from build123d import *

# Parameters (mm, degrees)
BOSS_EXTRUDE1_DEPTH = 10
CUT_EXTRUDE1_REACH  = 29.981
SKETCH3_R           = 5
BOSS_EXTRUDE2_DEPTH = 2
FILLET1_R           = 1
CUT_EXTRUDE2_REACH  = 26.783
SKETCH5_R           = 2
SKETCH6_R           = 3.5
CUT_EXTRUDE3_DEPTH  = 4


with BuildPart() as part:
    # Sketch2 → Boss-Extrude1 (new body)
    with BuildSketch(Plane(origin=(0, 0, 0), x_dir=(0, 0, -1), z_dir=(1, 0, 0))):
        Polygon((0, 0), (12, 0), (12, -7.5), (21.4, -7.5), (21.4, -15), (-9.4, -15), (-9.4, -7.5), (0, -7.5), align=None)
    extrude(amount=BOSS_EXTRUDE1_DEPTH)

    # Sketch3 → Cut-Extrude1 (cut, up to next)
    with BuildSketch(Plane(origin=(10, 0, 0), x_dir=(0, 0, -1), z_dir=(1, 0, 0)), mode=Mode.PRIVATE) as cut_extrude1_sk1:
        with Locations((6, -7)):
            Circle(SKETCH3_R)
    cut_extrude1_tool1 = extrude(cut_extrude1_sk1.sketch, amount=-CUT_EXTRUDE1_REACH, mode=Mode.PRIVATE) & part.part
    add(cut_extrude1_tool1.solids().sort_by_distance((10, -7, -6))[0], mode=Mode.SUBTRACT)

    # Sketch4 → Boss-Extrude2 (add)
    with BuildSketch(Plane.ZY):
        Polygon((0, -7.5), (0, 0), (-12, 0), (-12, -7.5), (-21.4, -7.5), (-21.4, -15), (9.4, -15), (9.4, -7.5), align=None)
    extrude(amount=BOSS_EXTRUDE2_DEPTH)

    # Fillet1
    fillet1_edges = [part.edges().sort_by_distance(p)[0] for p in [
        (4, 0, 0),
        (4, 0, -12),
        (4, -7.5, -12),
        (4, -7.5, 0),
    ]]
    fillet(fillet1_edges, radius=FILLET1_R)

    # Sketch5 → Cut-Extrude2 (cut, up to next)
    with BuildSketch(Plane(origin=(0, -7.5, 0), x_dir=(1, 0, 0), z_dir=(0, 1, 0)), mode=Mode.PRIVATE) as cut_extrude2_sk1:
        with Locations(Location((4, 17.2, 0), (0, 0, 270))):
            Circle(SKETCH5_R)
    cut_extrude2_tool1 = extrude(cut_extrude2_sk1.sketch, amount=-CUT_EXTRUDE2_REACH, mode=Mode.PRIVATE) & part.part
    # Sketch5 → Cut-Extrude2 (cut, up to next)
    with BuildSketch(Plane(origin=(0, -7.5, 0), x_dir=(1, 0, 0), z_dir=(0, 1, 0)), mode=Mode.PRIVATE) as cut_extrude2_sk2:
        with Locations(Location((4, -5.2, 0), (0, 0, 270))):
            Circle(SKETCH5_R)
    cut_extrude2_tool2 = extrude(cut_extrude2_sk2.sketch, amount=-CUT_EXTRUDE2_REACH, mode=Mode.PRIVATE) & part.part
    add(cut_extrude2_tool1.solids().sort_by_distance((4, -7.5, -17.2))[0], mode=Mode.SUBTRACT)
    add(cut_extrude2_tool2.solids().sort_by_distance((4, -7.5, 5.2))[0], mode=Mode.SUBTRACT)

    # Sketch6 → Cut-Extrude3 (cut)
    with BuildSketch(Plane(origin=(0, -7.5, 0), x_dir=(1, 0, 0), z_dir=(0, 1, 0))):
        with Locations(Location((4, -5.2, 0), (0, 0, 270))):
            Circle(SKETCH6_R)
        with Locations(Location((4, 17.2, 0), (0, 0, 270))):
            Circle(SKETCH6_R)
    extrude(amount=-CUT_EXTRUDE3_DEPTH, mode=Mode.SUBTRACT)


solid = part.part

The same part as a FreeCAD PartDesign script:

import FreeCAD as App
import Part
import Sketcher

V = App.Vector


def edges_at(feature, points):
    """Names of the edges that pass closest to the given points."""
    edges = feature.Shape.Edges
    near = lambda p: min(range(len(edges)), key=lambda i: edges[i].distToShape(Part.Vertex(*p))[0])
    return sorted({f"Edge{near(p) + 1}" for p in points})

doc = App.newDocument("Part")
body = doc.addObject("PartDesign::Body", "Body")

sketch1 = body.newObject("Sketcher::SketchObject", "Sketch")
sketch1.AttachmentSupport = (doc.getObject("YZ_Plane"), [""])
sketch1.MapMode = "FlatFace"
sketch1.addGeometry([
    Part.LineSegment(V(0, -12, 0), V(0, 0, 0)),
    Part.LineSegment(V(0, 0, 0), V(-8, 0, 0)),
    Part.LineSegment(V(-8, 0, 0), V(-8, 9, 0)),
    Part.LineSegment(V(-8, 9, 0), V(-15, 9, 0)),
    Part.LineSegment(V(-15, 9, 0), V(-15, -21, 0)),
    Part.LineSegment(V(-15, -21, 0), V(-8, -21, 0)),
    Part.LineSegment(V(-8, -21, 0), V(-8, -12, 0)),
    Part.LineSegment(V(-8, -12, 0), V(0, -12, 0)),
], False)
sketch1.addConstraint([
    Sketcher.Constraint("Coincident", 0, 2, 1, 1),
    Sketcher.Constraint("Coincident", 1, 2, 2, 1),
    Sketcher.Constraint("Coincident", 2, 2, 3, 1),
    Sketcher.Constraint("Coincident", 3, 2, 4, 1),
    Sketcher.Constraint("Coincident", 4, 2, 5, 1),
    Sketcher.Constraint("Coincident", 5, 2, 6, 1),
    Sketcher.Constraint("Coincident", 6, 2, 7, 1),
    Sketcher.Constraint("Coincident", 7, 2, 0, 1),
    Sketcher.Constraint("Vertical", 0),
    Sketcher.Constraint("Horizontal", 1),
    Sketcher.Constraint("Vertical", 2),
    Sketcher.Constraint("Horizontal", 3),
    Sketcher.Constraint("Vertical", 4),
    Sketcher.Constraint("Horizontal", 5),
    Sketcher.Constraint("Vertical", 6),
    Sketcher.Constraint("Horizontal", 7),
    Sketcher.Constraint("Coincident", 0, 2, -1, 1),
    Sketcher.Constraint("Vertical", 2, 2, 5, 2),
    Sketcher.Constraint("Equal", 1, 3),
    Sketcher.Constraint("Equal", 2, 6),
    Sketcher.Constraint("DistanceY", 0, 1, 0, 2, 12.0),
    Sketcher.Constraint("DistanceX", 1, 2, 1, 1, 7.5),
    Sketcher.Constraint("DistanceY", 2, 1, 2, 2, 9.4),
])
pad1 = body.newObject("PartDesign::Pad", "Pad")
pad1.Profile = sketch1
pad1.Length = 10

sketch2 = body.newObject("Sketcher::SketchObject", "Sketch001")
sketch2.AttachmentSupport = (doc.getObject("YZ_Plane"), [""])
sketch2.MapMode = "FlatFace"
sketch2.AttachmentOffset = App.Placement(V(0, 0, 10), App.Rotation())
sketch2.addGeometry(Part.Circle(V(-7, -6, 0), V(0, 0, 1), 5), False)
sketch2.addConstraint([
    Sketcher.Constraint("Diameter", 0, 10.0),
    Sketcher.Constraint("DistanceX", 0, 3, -1, 1, 7.0),
    Sketcher.Constraint("DistanceY", 0, 3, -1, 1, 6.0),
])
pocket1 = body.newObject("PartDesign::Pocket", "Pocket")
pocket1.Profile = sketch2
pocket1.Type = "UpToFirst"

sketch3 = body.newObject("Sketcher::SketchObject", "Sketch002")
sketch3.AttachmentSupport = (doc.getObject("YZ_Plane"), [""])
sketch3.MapMode = "FlatFace"
sketch3.addGeometry([
    Part.LineSegment(V(-8, 0, 0), V(0, 0, 0)),
    Part.LineSegment(V(0, 0, 0), V(0, -12, 0)),
    Part.LineSegment(V(0, -12, 0), V(-8, -12, 0)),
    Part.LineSegment(V(-8, -12, 0), V(-8, -21, 0)),
    Part.LineSegment(V(-8, -21, 0), V(-15, -21, 0)),
    Part.LineSegment(V(-15, -21, 0), V(-15, 9, 0)),
    Part.LineSegment(V(-15, 9, 0), V(-8, 9, 0)),
    Part.LineSegment(V(-8, 9, 0), V(-8, 0, 0)),
], False)
sketch3.addConstraint([
    Sketcher.Constraint("Coincident", 0, 2, 1, 1),
    Sketcher.Constraint("Coincident", 1, 2, 2, 1),
    Sketcher.Constraint("Coincident", 2, 2, 3, 1),
    Sketcher.Constraint("Coincident", 3, 2, 4, 1),
    Sketcher.Constraint("Coincident", 4, 2, 5, 1),
    Sketcher.Constraint("Coincident", 5, 2, 6, 1),
    Sketcher.Constraint("Coincident", 6, 2, 7, 1),
    Sketcher.Constraint("Coincident", 7, 2, 0, 1),
    Sketcher.Constraint("Horizontal", 0),
    Sketcher.Constraint("Vertical", 1),
    Sketcher.Constraint("Horizontal", 2),
    Sketcher.Constraint("Vertical", 3),
    Sketcher.Constraint("Horizontal", 4),
    Sketcher.Constraint("Vertical", 5),
    Sketcher.Constraint("Horizontal", 6),
    Sketcher.Constraint("Vertical", 7),
    Sketcher.Constraint("Coincident", 0, 2, -1, 1),
    Sketcher.Constraint("Vertical", 3, 2, 6, 2),
    Sketcher.Constraint("Equal", 2, 4),
    Sketcher.Constraint("Equal", 3, 7),
    Sketcher.Constraint("DistanceY", 1, 2, 1, 1, 12.0),
    Sketcher.Constraint("DistanceX", 0, 1, 0, 2, 7.5),
    Sketcher.Constraint("DistanceY", 3, 2, 3, 1, 9.4),
])
pad2 = body.newObject("PartDesign::Pad", "Pad001")
pad2.Profile = sketch3
pad2.Length = 2
pad2.Reversed = True
doc.recompute()

fillet = body.newObject("PartDesign::Fillet", "Fillet")
fillet.Base = (pad2, edges_at(pad2, [
    (4, 0, 0),
    (4, 0, -12),
    (4, -7.5, -12),
    (4, -7.5, 0),
]))
fillet.Radius = 1

sketch4 = body.newObject("Sketcher::SketchObject", "Sketch003")
sketch4.AttachmentSupport = (doc.getObject("XZ_Plane"), [""])
sketch4.MapMode = "FlatFace"
sketch4.AttachmentOffset = App.Placement(V(0, 0, 7.5), App.Rotation())
sketch4.addGeometry(Part.Circle(V(4, -17.2, 0), V(0, 0, 1), 2), False)
sketch4.addConstraint([
    Sketcher.Constraint("Diameter", 0, 4.0),
    Sketcher.Constraint("DistanceX", -1, 1, 0, 3, 4.0),
    Sketcher.Constraint("DistanceY", 0, 3, -1, 1, 17.2),
])
pocket2 = body.newObject("PartDesign::Pocket", "Pocket001")
pocket2.Profile = sketch4
pocket2.Type = "UpToFirst"
pocket2.Reversed = True

sketch5 = body.newObject("Sketcher::SketchObject", "Sketch004")
sketch5.AttachmentSupport = (doc.getObject("XZ_Plane"), [""])
sketch5.MapMode = "FlatFace"
sketch5.AttachmentOffset = App.Placement(V(0, 0, 7.5), App.Rotation())
sketch5.addGeometry(Part.Circle(V(4, 5.2, 0), V(0, 0, 1), 2), False)
sketch5.addConstraint([
    Sketcher.Constraint("Diameter", 0, 4.0),
    Sketcher.Constraint("DistanceX", -1, 1, 0, 3, 4.0),
    Sketcher.Constraint("DistanceY", -1, 1, 0, 3, 5.2),
])
pocket3 = body.newObject("PartDesign::Pocket", "Pocket002")
pocket3.Profile = sketch5
pocket3.Type = "UpToFirst"
pocket3.Reversed = True

sketch6 = body.newObject("Sketcher::SketchObject", "Sketch005")
sketch6.AttachmentSupport = (doc.getObject("XZ_Plane"), [""])
sketch6.MapMode = "FlatFace"
sketch6.AttachmentOffset = App.Placement(V(0, 0, 7.5), App.Rotation())
sketch6.addGeometry([
    Part.Circle(V(4, 5.2, 0), V(0, 0, 1), 3.5),
    Part.Circle(V(4, -17.2, 0), V(0, 0, 1), 3.5),
], False)
sketch6.addConstraint([
    Sketcher.Constraint("Equal", 0, 1),
    Sketcher.Constraint("Vertical", 0, 3, 1, 3),
    Sketcher.Constraint("Diameter", 0, 7.0),
    Sketcher.Constraint("DistanceX", -1, 1, 0, 3, 4.0),
    Sketcher.Constraint("DistanceY", -1, 1, 0, 3, 5.2),
    Sketcher.Constraint("DistanceY", 1, 3, -1, 1, 17.2),
])
pocket4 = body.newObject("PartDesign::Pocket", "Pocket003")
pocket4.Profile = sketch6
pocket4.Length = 4
pocket4.Reversed = True

doc.recompute()
